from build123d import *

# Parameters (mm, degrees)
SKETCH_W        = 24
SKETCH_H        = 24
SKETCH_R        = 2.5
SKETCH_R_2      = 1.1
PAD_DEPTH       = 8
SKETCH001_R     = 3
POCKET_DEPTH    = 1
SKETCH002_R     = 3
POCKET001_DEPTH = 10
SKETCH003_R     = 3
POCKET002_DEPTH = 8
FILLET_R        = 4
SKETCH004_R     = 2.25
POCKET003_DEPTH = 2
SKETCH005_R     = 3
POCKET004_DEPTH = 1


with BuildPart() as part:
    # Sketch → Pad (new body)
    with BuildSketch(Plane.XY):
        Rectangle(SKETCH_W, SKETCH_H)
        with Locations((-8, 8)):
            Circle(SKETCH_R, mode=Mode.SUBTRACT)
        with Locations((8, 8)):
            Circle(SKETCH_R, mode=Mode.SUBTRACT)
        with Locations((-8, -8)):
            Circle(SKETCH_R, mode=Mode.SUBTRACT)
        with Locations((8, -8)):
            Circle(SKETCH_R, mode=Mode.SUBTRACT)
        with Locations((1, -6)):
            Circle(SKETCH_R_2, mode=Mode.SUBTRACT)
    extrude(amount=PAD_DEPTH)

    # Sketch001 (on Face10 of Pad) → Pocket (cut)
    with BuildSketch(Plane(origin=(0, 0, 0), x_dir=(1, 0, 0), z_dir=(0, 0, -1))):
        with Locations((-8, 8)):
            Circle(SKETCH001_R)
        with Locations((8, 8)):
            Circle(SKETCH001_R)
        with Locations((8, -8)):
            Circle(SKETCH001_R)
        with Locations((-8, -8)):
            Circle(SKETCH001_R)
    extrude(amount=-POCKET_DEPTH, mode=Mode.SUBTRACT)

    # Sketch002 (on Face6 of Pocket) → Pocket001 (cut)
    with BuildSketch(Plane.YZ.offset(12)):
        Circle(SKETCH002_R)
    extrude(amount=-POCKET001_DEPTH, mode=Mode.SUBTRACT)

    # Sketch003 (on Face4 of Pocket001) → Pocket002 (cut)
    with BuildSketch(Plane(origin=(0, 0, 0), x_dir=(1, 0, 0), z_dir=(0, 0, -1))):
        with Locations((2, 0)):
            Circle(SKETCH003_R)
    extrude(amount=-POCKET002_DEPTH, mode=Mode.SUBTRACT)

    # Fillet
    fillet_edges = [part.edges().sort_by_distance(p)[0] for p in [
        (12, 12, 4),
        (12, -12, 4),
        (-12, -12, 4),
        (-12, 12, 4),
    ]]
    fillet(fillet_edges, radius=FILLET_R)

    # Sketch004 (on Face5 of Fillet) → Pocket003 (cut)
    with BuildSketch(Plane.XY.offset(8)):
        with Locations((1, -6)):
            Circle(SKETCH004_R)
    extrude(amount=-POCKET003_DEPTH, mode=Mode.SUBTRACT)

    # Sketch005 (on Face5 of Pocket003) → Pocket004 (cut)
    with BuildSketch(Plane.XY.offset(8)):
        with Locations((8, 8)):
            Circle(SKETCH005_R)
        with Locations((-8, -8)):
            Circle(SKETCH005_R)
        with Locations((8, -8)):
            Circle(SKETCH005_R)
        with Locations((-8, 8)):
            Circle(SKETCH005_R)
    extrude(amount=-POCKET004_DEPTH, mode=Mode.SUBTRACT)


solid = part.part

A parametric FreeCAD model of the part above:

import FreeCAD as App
import Part
import Sketcher

V = App.Vector
Q = App.Units.Quantity


def edges_at(feature, points):
    """Names of the edges that pass closest to the given points."""
    edges = feature.Shape.Edges
    near = lambda p: min(range(len(edges)), key=lambda i: edges[i].distToShape(Part.Vertex(*p))[0])
    return sorted({f"Edge{near(p) + 1}" for p in points})

doc = App.newDocument("Part")
body = doc.addObject("PartDesign::Body", "Body")

# Sketch on XY plane
sketch1 = doc.addObject("Sketcher::SketchObject", "Sketch")
body.addObject(sketch1)
sketch1.AttachmentSupport = (doc.XY_Plane, [""])
sketch1.MapMode = "FlatFace"
sketch1.addGeometry([
    Part.LineSegment(V(-12, 12, 0), V(-12, -12, 0)),  # 0
    Part.LineSegment(V(-12, -12, 0), V(12, -12, 0)),  # 1
    Part.LineSegment(V(12, -12, 0), V(12, 12, 0)),  # 2
    Part.LineSegment(V(12, 12, 0), V(-12, 12, 0)),  # 3
    Part.Circle(V(-8, -8, 0), V(0, 0, 1), 2.5),  # 4
    Part.Circle(V(1, -6, 0), V(0, 0, 1), 1.1),  # 5
    Part.Circle(V(8, -8, 0), V(0, 0, 1), 2.5),  # 6
    Part.Circle(V(-8, 8, 0), V(0, 0, 1), 2.5),  # 7
    Part.Circle(V(8, 8, 0), V(0, 0, 1), 2.5),  # 8
], False)
sketch1.addConstraint([
    Sketcher.Constraint("Coincident", 0, 2, 1, 1),
    Sketcher.Constraint("Coincident", 1, 2, 2, 1),
    Sketcher.Constraint("Coincident", 2, 2, 3, 1),
    Sketcher.Constraint("Coincident", 3, 2, 0, 1),
    Sketcher.Constraint("Vertical", 0),
    Sketcher.Constraint("Horizontal", 1),
    Sketcher.Constraint("Vertical", 2),
    Sketcher.Constraint("Horizontal", 3),
    Sketcher.Constraint("Equal", 4, 6),
    Sketcher.Constraint("Equal", 6, 7),
    Sketcher.Constraint("Equal", 7, 8),
    Sketcher.Constraint("Symmetric", 6, 3, 7, 3, -1, 1),
    Sketcher.Constraint("Symmetric", 4, 3, 8, 3, -1, 1),
    Sketcher.Constraint("Symmetric", 0, 2, 2, 2, -1, 1),
    Sketcher.Constraint("Symmetric", 4, 3, 6, 3, -2),
    Sketcher.Constraint("Equal", 3, 0),
    Sketcher.Constraint("Diameter", 4, Q("5 mm")),
    Sketcher.Constraint("Diameter", 5, Q("2.2 mm")),
    Sketcher.Constraint("DistanceX", 1, 1, 1, 2, Q("24 mm")),
    Sketcher.Constraint("DistanceX", 4, 3, -1, 1, Q("8 mm")),
    Sketcher.Constraint("DistanceY", 4, 3, -1, 1, Q("8 mm")),
    Sketcher.Constraint("DistanceX", -1, 1, 5, 3, Q("1 mm")),
    Sketcher.Constraint("DistanceY", 5, 3, -1, 1, Q("6 mm")),
])
pad1 = doc.addObject("PartDesign::Pad", "Pad")
body.addObject(pad1)
pad1.Profile = sketch1
pad1.Length = 8

# Sketch on XY plane
sketch2 = doc.addObject("Sketcher::SketchObject", "Sketch001")
body.addObject(sketch2)
sketch2.AttachmentSupport = (doc.XY_Plane, [""])
sketch2.MapMode = "FlatFace"
sketch2.addGeometry([
    Part.Circle(V(-8, -8, 0), V(0, 0, 1), 3),
    Part.Circle(V(8, -8, 0), V(0, 0, 1), 3),
    Part.Circle(V(8, 8, 0), V(0, 0, 1), 3),
    Part.Circle(V(-8, 8, 0), V(0, 0, 1), 3),
], False)
sketch2.addConstraint([
    Sketcher.Constraint("Equal", 0, 1),
    Sketcher.Constraint("Equal", 1, 2),
    Sketcher.Constraint("Equal", 2, 3),
    Sketcher.Constraint("Symmetric", 0, 3, 2, 3, -1, 1),
    Sketcher.Constraint("Symmetric", 1, 3, 3, 3, -1, 1),
    Sketcher.Constraint("Symmetric", 0, 3, 1, 3, -2),
    Sketcher.Constraint("Diameter", 0, Q("6 mm")),
    Sketcher.Constraint("DistanceX", 0, 3, -1, 1, Q("8 mm")),
    Sketcher.Constraint("DistanceY", 0, 3, -1, 1, Q("8 mm")),
])
pocket1 = doc.addObject("PartDesign::Pocket", "Pocket")
body.addObject(pocket1)
pocket1.Profile = sketch2
pocket1.Length = 1
pocket1.Reversed = True

# Sketch on YZ plane
sketch3 = doc.addObject("Sketcher::SketchObject", "Sketch002")
body.addObject(sketch3)
sketch3.AttachmentSupport = (doc.YZ_Plane, [""])
sketch3.MapMode = "FlatFace"
sketch3.AttachmentOffset = App.Placement(V(0, 0, 12), App.Rotation())
sketch3.addGeometry(Part.Circle(V(0, 0, 0), V(0, 0, 1), 3), False)
sketch3.addConstraint([
    Sketcher.Constraint("Coincident", 0, 3, -1, 1),
    Sketcher.Constraint("Diameter", 0, Q("6 mm")),
])
pocket2 = doc.addObject("PartDesign::Pocket", "Pocket001")
body.addObject(pocket2)
pocket2.Profile = sketch3
pocket2.Length = 10

# Sketch on XY plane
sketch4 = doc.addObject("Sketcher::SketchObject", "Sketch003")
body.addObject(sketch4)
sketch4.AttachmentSupport = (doc.XY_Plane, [""])
sketch4.MapMode = "FlatFace"
sketch4.addGeometry(Part.Circle(V(2, 0, 0), V(0, 0, 1), 3), False)
sketch4.addConstraint([
    Sketcher.Constraint("PointOnObject", 0, 3, -1),
    Sketcher.Constraint("Diameter", 0, Q("6 mm")),
    Sketcher.Constraint("DistanceX", -1, 1, 0, 3, Q("2 mm")),
])
pocket3 = doc.addObject("PartDesign::Pocket", "Pocket002")
body.addObject(pocket3)
pocket3.Profile = sketch4
pocket3.Length = 8
pocket3.Reversed = True
doc.recompute()

fillet = doc.addObject("PartDesign::Fillet", "Fillet")
body.addObject(fillet)
fillet.Base = (pocket3, edges_at(pocket3, [
    (12, 12, 4),
    (12, -12, 4),
    (-12, -12, 4),
    (-12, 12, 4),
]))
fillet.Radius = 4

# Sketch on XY plane
sketch5 = doc.addObject("Sketcher::SketchObject", "Sketch004")
body.addObject(sketch5)
sketch5.AttachmentSupport = (doc.XY_Plane, [""])
sketch5.MapMode = "FlatFace"
sketch5.AttachmentOffset = App.Placement(V(0, 0, 8), App.Rotation())
sketch5.addGeometry(Part.Circle(V(1, -6, 0), V(0, 0, 1), 2.2), False)
sketch5.addConstraint([
    Sketcher.Constraint("Diameter", 0, Q("4.5 mm")),
    Sketcher.Constraint("DistanceX", -1, 1, 0, 3, Q("1 mm")),
    Sketcher.Constraint("DistanceY", 0, 3, -1, 1, Q("6 mm")),
])
pocket4 = doc.addObject("PartDesign::Pocket", "Pocket003")
body.addObject(pocket4)
pocket4.Profile = sketch5
pocket4.Length = 2

# Sketch on XY plane
sketch6 = doc.addObject("Sketcher::SketchObject", "Sketch005")
body.addObject(sketch6)
sketch6.AttachmentSupport = (doc.XY_Plane, [""])
sketch6.MapMode = "FlatFace"
sketch6.AttachmentOffset = App.Placement(V(0, 0, 8), App.Rotation())
sketch6.addGeometry([
    Part.Circle(V(8, 8, 0), V(0, 0, 1), 3),
    Part.Circle(V(-8, -8, 0), V(0, 0, 1), 3),
    Part.Circle(V(8, -8, 0), V(0, 0, 1), 3),
    Part.Circle(V(-8, 8, 0), V(0, 0, 1), 3),
], False)
sketch6.addConstraint([
    Sketcher.Constraint("Equal", 0, 1),
    Sketcher.Constraint("Equal", 1, 2),
    Sketcher.Constraint("Equal", 2, 3),
    Sketcher.Constraint("Symmetric", 0, 3, 1, 3, -1, 1),
    Sketcher.Constraint("Symmetric", 2, 3, 3, 3, -1, 1),
    Sketcher.Constraint("Symmetric", 1, 3, 2, 3, -2),
    Sketcher.Constraint("Diameter", 0, Q("6 mm")),
    Sketcher.Constraint("DistanceX", -1, 1, 0, 3, Q("8 mm")),
    Sketcher.Constraint("DistanceY", -1, 1, 0, 3, Q("8 mm")),
])
pocket5 = doc.addObject("PartDesign::Pocket", "Pocket004")
body.addObject(pocket5)
pocket5.Profile = sketch6
pocket5.Length = 1

doc.recompute()
